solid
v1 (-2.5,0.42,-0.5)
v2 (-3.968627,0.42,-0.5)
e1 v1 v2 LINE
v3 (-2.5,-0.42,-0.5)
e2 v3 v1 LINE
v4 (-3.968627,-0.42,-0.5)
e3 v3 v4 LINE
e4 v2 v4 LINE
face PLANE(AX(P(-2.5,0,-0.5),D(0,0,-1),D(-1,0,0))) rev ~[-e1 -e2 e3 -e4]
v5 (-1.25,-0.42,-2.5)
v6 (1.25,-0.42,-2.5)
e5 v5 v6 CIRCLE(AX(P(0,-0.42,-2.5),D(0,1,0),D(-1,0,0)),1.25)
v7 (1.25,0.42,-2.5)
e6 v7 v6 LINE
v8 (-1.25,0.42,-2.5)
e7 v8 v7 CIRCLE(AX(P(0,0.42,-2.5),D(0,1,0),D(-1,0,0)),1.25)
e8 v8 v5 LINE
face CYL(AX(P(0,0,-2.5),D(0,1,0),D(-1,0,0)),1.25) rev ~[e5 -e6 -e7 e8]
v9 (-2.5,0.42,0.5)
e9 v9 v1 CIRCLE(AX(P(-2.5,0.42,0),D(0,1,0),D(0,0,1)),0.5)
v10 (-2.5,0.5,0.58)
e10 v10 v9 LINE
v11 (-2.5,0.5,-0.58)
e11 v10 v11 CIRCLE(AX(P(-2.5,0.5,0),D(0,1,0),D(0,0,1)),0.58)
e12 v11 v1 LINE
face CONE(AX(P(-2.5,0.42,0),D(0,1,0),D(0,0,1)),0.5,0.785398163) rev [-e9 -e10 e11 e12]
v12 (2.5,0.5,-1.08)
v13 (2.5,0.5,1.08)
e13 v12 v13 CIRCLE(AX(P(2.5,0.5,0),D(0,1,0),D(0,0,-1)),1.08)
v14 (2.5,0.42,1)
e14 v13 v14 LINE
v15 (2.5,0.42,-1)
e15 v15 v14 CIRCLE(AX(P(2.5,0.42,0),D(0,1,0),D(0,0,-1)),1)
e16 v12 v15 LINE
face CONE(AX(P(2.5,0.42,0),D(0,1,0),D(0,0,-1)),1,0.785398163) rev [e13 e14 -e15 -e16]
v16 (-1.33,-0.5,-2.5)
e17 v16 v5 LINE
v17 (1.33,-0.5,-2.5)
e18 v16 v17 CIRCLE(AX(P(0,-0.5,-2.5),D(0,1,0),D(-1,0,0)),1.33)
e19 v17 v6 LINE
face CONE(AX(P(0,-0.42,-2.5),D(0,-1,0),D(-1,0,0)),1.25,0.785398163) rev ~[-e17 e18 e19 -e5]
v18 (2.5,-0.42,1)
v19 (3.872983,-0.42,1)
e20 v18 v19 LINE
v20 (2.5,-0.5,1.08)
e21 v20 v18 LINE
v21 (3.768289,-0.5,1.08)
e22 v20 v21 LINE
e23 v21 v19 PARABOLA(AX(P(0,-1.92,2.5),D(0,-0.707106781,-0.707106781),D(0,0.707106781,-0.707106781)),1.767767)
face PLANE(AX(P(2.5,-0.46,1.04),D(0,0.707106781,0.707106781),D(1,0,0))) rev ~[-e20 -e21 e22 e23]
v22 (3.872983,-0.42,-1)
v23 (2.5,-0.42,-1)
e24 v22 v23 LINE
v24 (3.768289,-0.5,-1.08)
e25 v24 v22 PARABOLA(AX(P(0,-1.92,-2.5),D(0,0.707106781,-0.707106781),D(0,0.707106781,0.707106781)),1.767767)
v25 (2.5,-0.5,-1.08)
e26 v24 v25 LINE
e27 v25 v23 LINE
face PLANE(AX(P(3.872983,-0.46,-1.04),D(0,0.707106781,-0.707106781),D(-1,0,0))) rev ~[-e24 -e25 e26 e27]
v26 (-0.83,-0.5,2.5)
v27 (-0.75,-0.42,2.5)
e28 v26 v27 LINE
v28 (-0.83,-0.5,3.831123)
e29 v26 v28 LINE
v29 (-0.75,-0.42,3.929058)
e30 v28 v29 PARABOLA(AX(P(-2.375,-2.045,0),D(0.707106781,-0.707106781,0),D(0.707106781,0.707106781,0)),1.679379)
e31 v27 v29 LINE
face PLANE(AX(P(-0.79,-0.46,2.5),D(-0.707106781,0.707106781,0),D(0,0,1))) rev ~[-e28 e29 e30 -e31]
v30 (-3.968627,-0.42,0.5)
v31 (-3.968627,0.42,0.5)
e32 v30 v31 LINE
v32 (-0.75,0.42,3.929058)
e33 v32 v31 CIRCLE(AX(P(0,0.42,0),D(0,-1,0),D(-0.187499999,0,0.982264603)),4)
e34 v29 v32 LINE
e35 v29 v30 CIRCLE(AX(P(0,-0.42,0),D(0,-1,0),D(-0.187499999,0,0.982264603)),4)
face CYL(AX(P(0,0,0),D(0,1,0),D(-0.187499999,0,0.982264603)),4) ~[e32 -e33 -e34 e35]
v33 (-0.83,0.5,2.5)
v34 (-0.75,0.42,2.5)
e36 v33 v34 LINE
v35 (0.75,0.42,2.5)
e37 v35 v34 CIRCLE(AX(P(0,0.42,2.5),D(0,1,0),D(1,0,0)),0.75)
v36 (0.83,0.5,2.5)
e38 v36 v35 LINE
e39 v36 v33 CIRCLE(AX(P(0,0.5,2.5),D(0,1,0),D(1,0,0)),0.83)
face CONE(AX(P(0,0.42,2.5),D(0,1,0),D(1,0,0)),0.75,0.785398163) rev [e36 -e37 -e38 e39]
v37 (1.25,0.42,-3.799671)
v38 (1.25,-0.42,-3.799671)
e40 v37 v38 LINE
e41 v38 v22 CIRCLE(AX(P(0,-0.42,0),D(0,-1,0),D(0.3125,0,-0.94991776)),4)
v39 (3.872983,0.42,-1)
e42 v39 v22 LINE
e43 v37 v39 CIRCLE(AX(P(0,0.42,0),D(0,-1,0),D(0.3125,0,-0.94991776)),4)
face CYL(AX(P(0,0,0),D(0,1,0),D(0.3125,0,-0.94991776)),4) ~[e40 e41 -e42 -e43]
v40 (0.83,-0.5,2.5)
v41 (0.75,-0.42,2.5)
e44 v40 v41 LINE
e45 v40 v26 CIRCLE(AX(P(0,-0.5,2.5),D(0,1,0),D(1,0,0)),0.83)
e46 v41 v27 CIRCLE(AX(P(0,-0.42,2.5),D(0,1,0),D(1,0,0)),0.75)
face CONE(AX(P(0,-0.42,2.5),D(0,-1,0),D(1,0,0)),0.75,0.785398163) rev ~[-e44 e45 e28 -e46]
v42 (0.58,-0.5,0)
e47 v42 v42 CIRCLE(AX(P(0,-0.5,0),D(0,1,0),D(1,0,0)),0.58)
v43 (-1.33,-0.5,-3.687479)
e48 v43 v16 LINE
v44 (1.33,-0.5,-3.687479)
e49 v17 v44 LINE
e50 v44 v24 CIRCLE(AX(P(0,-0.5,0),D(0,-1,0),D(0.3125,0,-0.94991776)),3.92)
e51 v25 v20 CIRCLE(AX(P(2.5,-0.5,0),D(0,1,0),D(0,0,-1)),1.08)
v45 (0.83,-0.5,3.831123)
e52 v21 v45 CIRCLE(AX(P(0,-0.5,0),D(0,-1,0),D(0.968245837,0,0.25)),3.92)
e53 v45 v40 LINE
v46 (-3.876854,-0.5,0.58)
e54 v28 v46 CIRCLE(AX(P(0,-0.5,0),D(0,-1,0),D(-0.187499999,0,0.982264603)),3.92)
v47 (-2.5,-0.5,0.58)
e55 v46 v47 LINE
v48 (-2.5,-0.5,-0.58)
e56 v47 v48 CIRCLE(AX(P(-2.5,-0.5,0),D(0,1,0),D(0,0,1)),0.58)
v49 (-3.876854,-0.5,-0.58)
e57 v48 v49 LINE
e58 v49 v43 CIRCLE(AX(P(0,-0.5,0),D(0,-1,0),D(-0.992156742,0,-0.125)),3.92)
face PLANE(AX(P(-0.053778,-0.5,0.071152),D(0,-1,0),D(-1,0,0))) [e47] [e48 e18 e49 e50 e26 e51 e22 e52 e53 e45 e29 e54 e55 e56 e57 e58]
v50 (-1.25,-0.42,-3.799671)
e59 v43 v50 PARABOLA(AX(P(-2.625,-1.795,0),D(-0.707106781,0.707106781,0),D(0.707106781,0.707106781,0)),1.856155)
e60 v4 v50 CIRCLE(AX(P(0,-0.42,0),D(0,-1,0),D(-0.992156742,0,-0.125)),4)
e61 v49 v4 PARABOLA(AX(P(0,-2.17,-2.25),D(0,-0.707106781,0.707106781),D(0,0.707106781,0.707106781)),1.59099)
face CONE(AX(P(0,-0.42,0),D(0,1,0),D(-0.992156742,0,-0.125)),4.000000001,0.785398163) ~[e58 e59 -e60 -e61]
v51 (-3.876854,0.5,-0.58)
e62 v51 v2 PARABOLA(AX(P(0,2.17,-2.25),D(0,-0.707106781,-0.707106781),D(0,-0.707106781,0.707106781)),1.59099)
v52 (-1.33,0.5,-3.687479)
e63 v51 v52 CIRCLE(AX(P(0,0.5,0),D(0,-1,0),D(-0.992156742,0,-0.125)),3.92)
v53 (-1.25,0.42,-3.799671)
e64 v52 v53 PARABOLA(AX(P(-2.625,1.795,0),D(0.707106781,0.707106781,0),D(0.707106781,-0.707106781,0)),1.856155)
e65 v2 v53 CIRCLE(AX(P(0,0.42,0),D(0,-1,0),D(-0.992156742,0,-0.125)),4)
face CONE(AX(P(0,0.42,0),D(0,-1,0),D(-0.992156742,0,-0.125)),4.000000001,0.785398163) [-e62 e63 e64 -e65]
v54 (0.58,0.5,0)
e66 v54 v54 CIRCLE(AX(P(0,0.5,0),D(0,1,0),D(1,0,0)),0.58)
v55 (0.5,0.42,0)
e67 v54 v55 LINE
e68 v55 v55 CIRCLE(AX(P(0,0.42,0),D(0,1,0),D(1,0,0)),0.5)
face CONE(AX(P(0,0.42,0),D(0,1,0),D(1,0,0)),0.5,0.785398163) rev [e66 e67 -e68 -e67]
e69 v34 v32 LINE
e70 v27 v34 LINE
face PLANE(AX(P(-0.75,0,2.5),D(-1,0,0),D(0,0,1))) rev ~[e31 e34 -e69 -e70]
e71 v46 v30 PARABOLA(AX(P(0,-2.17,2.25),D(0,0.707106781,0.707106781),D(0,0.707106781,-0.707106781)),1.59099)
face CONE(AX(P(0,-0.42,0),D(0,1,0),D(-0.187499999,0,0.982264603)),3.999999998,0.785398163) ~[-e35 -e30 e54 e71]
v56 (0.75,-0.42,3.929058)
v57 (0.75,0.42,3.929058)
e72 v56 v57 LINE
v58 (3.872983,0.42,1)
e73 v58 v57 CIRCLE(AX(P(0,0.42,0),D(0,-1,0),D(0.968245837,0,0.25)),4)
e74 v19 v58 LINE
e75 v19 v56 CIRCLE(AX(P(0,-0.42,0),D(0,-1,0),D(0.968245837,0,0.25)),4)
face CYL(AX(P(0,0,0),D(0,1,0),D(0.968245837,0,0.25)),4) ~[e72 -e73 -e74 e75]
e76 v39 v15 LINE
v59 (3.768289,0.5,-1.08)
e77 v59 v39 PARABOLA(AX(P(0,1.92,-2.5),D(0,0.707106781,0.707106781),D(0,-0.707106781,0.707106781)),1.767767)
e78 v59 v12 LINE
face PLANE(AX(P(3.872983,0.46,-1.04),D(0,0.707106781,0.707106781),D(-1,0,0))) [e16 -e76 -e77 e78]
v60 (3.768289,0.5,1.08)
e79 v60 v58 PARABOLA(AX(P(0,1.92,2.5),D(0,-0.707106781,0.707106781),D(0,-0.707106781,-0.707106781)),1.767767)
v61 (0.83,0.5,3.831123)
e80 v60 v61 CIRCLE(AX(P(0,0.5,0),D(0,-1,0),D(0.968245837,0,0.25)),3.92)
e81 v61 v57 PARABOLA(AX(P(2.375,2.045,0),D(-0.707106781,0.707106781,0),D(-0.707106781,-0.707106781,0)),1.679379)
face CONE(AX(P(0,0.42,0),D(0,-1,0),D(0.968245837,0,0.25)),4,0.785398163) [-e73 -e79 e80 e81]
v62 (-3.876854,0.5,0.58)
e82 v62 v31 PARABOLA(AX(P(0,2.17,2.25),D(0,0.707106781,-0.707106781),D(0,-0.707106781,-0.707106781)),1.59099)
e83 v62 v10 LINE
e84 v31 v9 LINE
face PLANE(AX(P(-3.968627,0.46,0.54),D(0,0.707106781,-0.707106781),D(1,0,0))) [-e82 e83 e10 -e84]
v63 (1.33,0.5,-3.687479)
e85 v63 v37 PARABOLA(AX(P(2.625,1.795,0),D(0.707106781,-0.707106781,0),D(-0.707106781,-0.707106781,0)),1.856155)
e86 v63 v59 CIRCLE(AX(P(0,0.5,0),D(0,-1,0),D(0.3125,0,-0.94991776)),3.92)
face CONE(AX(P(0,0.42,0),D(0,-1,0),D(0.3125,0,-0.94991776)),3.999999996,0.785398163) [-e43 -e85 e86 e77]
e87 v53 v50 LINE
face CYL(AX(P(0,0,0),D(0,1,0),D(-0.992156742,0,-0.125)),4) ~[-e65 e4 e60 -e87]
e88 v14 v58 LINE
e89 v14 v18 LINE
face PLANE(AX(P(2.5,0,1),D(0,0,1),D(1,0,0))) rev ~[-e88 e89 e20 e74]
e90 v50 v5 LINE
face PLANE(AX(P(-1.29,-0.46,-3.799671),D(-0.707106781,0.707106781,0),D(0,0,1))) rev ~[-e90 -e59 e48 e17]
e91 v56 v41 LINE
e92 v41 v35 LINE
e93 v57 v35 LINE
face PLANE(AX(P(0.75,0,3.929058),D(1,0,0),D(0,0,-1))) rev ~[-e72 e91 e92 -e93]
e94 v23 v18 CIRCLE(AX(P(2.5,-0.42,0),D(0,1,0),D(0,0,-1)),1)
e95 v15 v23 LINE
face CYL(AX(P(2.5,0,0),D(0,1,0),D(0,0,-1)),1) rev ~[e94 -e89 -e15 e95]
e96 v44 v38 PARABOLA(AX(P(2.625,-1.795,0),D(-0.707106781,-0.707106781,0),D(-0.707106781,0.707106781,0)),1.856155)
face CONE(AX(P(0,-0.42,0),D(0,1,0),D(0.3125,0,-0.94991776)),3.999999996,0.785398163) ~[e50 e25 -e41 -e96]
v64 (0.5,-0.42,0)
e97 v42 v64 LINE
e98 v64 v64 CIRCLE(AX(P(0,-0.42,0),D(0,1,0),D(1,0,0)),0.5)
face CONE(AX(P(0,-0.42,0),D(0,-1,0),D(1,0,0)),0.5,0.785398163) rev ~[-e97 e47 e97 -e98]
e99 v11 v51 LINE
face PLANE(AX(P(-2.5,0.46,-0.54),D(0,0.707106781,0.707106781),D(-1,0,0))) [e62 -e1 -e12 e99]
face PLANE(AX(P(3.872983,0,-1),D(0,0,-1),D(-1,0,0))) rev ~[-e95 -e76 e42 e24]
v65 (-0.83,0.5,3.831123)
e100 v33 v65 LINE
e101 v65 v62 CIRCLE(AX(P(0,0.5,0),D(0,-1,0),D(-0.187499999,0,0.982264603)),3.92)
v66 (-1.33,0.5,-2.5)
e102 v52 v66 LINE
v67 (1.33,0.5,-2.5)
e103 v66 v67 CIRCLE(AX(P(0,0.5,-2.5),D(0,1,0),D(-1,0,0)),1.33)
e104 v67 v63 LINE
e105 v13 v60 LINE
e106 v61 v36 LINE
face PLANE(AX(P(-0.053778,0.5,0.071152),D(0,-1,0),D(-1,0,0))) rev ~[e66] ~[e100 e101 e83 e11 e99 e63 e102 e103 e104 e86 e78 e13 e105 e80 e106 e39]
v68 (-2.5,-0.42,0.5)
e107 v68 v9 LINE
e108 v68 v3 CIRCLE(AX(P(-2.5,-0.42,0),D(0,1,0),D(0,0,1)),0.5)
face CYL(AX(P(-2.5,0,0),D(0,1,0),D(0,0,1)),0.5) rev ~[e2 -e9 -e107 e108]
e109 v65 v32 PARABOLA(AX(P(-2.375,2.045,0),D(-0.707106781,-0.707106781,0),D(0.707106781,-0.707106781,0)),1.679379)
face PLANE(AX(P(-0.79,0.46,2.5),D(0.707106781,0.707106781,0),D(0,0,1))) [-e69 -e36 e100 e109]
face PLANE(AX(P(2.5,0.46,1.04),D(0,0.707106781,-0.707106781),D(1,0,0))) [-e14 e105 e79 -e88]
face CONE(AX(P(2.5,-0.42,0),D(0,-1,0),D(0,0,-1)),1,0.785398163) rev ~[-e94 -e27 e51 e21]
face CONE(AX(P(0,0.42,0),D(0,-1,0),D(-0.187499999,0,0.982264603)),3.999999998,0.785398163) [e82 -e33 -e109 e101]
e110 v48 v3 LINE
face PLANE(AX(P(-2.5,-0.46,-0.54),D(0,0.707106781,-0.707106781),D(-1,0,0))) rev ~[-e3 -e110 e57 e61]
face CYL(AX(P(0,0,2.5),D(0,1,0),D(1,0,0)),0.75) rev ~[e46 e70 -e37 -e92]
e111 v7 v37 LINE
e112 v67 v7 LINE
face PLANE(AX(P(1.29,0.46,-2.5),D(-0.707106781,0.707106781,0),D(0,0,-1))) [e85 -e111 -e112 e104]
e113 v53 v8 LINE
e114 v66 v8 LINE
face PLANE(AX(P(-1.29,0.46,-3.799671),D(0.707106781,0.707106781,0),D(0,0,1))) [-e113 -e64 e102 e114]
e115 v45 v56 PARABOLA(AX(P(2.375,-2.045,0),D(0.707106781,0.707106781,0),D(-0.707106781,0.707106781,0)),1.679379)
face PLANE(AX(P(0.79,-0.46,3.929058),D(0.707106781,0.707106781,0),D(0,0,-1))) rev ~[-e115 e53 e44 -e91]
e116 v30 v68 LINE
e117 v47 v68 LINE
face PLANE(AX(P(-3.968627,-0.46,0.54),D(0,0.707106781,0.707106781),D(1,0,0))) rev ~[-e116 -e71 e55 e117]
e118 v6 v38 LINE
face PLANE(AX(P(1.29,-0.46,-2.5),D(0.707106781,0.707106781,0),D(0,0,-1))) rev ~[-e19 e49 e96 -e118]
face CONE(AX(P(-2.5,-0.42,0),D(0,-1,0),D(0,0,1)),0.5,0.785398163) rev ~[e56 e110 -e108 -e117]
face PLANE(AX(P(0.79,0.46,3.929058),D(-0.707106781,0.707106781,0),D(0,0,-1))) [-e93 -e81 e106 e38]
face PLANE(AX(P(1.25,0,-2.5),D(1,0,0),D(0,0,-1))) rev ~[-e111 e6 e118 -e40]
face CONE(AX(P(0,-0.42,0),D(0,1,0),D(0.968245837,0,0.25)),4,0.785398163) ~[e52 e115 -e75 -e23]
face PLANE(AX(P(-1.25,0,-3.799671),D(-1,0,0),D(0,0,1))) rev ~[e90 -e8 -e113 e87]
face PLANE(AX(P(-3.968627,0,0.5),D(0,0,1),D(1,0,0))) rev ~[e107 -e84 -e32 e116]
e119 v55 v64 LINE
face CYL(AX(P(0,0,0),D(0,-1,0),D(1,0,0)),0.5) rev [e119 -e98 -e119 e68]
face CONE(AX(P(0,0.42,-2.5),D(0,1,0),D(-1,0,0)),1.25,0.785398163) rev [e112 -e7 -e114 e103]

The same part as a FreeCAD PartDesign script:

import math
import FreeCAD as App
import Part
import Sketcher
Q = App.Units.Quantity


def edges_at(feature, points):
    """Names of the edges that pass closest to the given points."""
    edges = feature.Shape.Edges
    near = lambda p: min(range(len(edges)), key=lambda i: edges[i].distToShape(Part.Vertex(*p))[0])
    return sorted({f"Edge{near(p) + 1}" for p in points})

doc = App.newDocument("Part")
params = doc.addObject("Spreadsheet::Sheet", "Params")
for row, (alias, value) in enumerate([
    ("sketch1_diameter", "1 mm"),
    ("sketch1_radius", "4 mm"),
    ("sketch1_radius2", "1 mm"),
    ("sketch1_radius3", "0.75 mm"),
    ("sketch1_radius4", "1.25 mm"),
    ("pad1_length", "1 mm"),
    ("chamfer_size", "0.08 mm"),
    ("chamfer2_size", "0.08 mm"),
], start=1):
    params.set(f"A{row}", alias)
    params.set(f"B{row}", "=" + value)
    params.setAlias(f"B{row}", alias)

body = doc.addObject("PartDesign::Body", "Body")

# Sketch on XZ plane
sketch1 = body.newObject("Sketcher::SketchObject", "Sketch")
sketch1.AttachmentSupport = (doc.getObject("XZ_Plane"), [""])
sketch1.MapMode = "FlatFace"
sketch1.addGeometry([
    Part.LineSegment(App.Vector(-4, -0.5, 0), App.Vector(-2.5, -0.5, 0)),  # 0
    Part.ArcOfCircle(Part.Circle(App.Vector(-2.5, 0, 0), App.Vector(0, 0, 1), 0.5), math.radians(-90), math.radians(90)),  # 1
    Part.LineSegment(App.Vector(-2.5, 0.5, 0), App.Vector(-4, 0.5, 0)),  # 2
    Part.ArcOfCircle(Part.Circle(App.Vector(0, 0, 0), App.Vector(0, 0, 1), 4), math.radians(101), math.radians(173)),  # 3
    Part.LineSegment(App.Vector(-0.8, 3.9, 0), App.Vector(-0.8, 2.5, 0)),  # 4
    Part.ArcOfCircle(Part.Circle(App.Vector(0, 2.5, 0), App.Vector(0, 0, 1), 0.8), math.radians(180), math.radians(360)),  # 5
    Part.LineSegment(App.Vector(0.8, 2.5, 0), App.Vector(0.8, 3.9, 0)),  # 6
    Part.ArcOfCircle(Part.Circle(App.Vector(0, 0, 0), App.Vector(0, 0, 1), 4), math.radians(14), math.radians(79)),  # 7
    Part.LineSegment(App.Vector(3.9, 1, 0), App.Vector(2.5, 1, 0)),  # 8
    Part.ArcOfCircle(Part.Circle(App.Vector(2.5, 0, 0), App.Vector(0, 0, 1), 1), math.radians(90), math.radians(270)),  # 9
    Part.LineSegment(App.Vector(2.5, -1, 0), App.Vector(3.9, -1, 0)),  # 10
    Part.ArcOfCircle(Part.Circle(App.Vector(0, 0, 0), App.Vector(0, 0, 1), 4), math.radians(-72), math.radians(-14)),  # 11
    Part.LineSegment(App.Vector(1.2, -3.8, 0), App.Vector(1.2, -2.5, 0)),  # 12
    Part.ArcOfCircle(Part.Circle(App.Vector(0, -2.5, 0), App.Vector(0, 0, 1), 1.2), math.radians(0), math.radians(180)),  # 13
    Part.LineSegment(App.Vector(-1.2, -2.5, 0), App.Vector(-1.2, -3.8, 0)),  # 14
    Part.ArcOfCircle(Part.Circle(App.Vector(0, 0, 0), App.Vector(0, 0, 1), 4), math.radians(-173), math.radians(-108)),  # 15
    Part.Circle(App.Vector(0, 0, 0), App.Vector(0, 0, 1), 0.5),  # 16
], False)
sketch1.addConstraint([
    Sketcher.Constraint("Tangent", 0, 2, 1, 1),
    Sketcher.Constraint("Tangent", 1, 2, 2, 1),
    Sketcher.Constraint("Coincident", 2, 2, 3, 2),
    Sketcher.Constraint("Coincident", 3, 1, 4, 1),
    Sketcher.Constraint("Tangent", 4, 2, 5, 1),
    Sketcher.Constraint("Tangent", 5, 2, 6, 1),
    Sketcher.Constraint("Coincident", 6, 2, 7, 2),
    Sketcher.Constraint("Coincident", 7, 1, 8, 1),
    Sketcher.Constraint("Tangent", 8, 2, 9, 1),
    Sketcher.Constraint("Tangent", 9, 2, 10, 1),
    Sketcher.Constraint("Coincident", 10, 2, 11, 2),
    Sketcher.Constraint("Coincident", 11, 1, 12, 1),
    Sketcher.Constraint("Tangent", 12, 2, 13, 1),
    Sketcher.Constraint("Tangent", 13, 2, 14, 1),
    Sketcher.Constraint("Coincident", 14, 2, 15, 2),
    Sketcher.Constraint("Coincident", 15, 1, 0, 1),
    Sketcher.Constraint("Horizontal", 0),
    Sketcher.Constraint("Horizontal", 2),
    Sketcher.Constraint("Vertical", 4),
    Sketcher.Constraint("Vertical", 6),
    Sketcher.Constraint("Horizontal", 8),
    Sketcher.Constraint("Horizontal", 10),
    Sketcher.Constraint("Vertical", 12),
    Sketcher.Constraint("Vertical", 14),
    Sketcher.Constraint("Coincident", 3, 3, -1, 1),
    Sketcher.Constraint("Coincident", 7, 3, -1, 1),
    Sketcher.Constraint("Coincident", 11, 3, -1, 1),
    Sketcher.Constraint("Coincident", 15, 3, -1, 1),
    Sketcher.Constraint("Coincident", 16, 3, -1, 1),
    Sketcher.Constraint("Equal", 3, 7),
    Sketcher.Constraint("Equal", 7, 11),
    Sketcher.Constraint("Equal", 11, 15),
    Sketcher.Constraint("Equal", 1, 16),
    Sketcher.Constraint("Symmetric", 1, 3, 9, 3, -1, 1),
    Sketcher.Constraint("Symmetric", 5, 3, 13, 3, -1, 1),
    Sketcher.Constraint("PointOnObject", 1, 3, -1),
    Sketcher.Constraint("PointOnObject", 5, 3, -2),
    Sketcher.Constraint("Diameter", 16, Q("1 mm")),
    Sketcher.Constraint("Radius", 3, Q("4 mm")),
    Sketcher.Constraint("Radius", 9, Q("1 mm")),
    Sketcher.Constraint("Radius", 5, Q("0.75 mm")),
    Sketcher.Constraint("Radius", 13, Q("1.25 mm")),
    Sketcher.Constraint("DistanceX", 1, 3, 9, 3, Q("5 mm")),
    Sketcher.Constraint("DistanceY", 13, 2, 0, 2, Q("2 mm")),
])
sketch1.setExpression("Constraints[37]", "Params.sketch1_diameter")
sketch1.setExpression("Constraints[38]", "Params.sketch1_radius")
sketch1.setExpression("Constraints[39]", "Params.sketch1_radius2")
sketch1.setExpression("Constraints[40]", "Params.sketch1_radius3")
sketch1.setExpression("Constraints[41]", "Params.sketch1_radius4")
pad1 = body.newObject("PartDesign::Pad", "Pad")
pad1.Profile = sketch1
pad1.setExpression("Length", "Params.pad1_length")
pad1.Midplane = True
doc.recompute()

chamfer = body.newObject("PartDesign::Chamfer", "Chamfer")
chamfer.Base = (pad1, edges_at(pad1, [
    (-2, 0.5, 0),
    (-3.234, 0.5, 0.5),
    (-2.916, 0.5, 2.738),
    (-0.75, 0.5, 3.215),
    (0, 0.5, 1.75),
    (0.75, 0.5, 3.215),
    (2.736, 0.5, 2.918),
    (-0.5, 0.5, 0),
    (3.186, 0.5, 1),
    (1.5, 0.5, 0),
    (3.186, 0.5, -1),
    (-3.087, 0.5, -2.544),
    (2.919, 0.5, -2.735),
    (1.25, 0.5, -3.15),
    (0, 0.5, -1.25),
    (-1.25, 0.5, -3.15),
    (-3.234, 0.5, -0.5),
]))
chamfer.setExpression("Size", "Params.chamfer_size")
doc.recompute()

chamfer2 = body.newObject("PartDesign::Chamfer", "Chamfer001")
chamfer2.Base = (chamfer, edges_at(chamfer, [
    (-1.25, -0.5, -3.15),
    (0, -0.5, -1.25),
    (1.25, -0.5, -3.15),
    (2.919, -0.5, -2.735),
    (3.186, -0.5, -1),
    (1.5, -0.5, 0),
    (3.186, -0.5, 1),
    (2.736, -0.5, 2.918),
    (0.75, -0.5, 3.215),
    (0, -0.5, 1.75),
    (-0.75, -0.5, 3.215),
    (-2.916, -0.5, 2.738),
    (-3.234, -0.5, 0.5),
    (-2, -0.5, 0),
    (-3.234, -0.5, -0.5),
    (-3.087, -0.5, -2.544),
    (-0.5, -0.5, 0),
]))
chamfer2.setExpression("Size", "Params.chamfer2_size")

doc.recompute()
